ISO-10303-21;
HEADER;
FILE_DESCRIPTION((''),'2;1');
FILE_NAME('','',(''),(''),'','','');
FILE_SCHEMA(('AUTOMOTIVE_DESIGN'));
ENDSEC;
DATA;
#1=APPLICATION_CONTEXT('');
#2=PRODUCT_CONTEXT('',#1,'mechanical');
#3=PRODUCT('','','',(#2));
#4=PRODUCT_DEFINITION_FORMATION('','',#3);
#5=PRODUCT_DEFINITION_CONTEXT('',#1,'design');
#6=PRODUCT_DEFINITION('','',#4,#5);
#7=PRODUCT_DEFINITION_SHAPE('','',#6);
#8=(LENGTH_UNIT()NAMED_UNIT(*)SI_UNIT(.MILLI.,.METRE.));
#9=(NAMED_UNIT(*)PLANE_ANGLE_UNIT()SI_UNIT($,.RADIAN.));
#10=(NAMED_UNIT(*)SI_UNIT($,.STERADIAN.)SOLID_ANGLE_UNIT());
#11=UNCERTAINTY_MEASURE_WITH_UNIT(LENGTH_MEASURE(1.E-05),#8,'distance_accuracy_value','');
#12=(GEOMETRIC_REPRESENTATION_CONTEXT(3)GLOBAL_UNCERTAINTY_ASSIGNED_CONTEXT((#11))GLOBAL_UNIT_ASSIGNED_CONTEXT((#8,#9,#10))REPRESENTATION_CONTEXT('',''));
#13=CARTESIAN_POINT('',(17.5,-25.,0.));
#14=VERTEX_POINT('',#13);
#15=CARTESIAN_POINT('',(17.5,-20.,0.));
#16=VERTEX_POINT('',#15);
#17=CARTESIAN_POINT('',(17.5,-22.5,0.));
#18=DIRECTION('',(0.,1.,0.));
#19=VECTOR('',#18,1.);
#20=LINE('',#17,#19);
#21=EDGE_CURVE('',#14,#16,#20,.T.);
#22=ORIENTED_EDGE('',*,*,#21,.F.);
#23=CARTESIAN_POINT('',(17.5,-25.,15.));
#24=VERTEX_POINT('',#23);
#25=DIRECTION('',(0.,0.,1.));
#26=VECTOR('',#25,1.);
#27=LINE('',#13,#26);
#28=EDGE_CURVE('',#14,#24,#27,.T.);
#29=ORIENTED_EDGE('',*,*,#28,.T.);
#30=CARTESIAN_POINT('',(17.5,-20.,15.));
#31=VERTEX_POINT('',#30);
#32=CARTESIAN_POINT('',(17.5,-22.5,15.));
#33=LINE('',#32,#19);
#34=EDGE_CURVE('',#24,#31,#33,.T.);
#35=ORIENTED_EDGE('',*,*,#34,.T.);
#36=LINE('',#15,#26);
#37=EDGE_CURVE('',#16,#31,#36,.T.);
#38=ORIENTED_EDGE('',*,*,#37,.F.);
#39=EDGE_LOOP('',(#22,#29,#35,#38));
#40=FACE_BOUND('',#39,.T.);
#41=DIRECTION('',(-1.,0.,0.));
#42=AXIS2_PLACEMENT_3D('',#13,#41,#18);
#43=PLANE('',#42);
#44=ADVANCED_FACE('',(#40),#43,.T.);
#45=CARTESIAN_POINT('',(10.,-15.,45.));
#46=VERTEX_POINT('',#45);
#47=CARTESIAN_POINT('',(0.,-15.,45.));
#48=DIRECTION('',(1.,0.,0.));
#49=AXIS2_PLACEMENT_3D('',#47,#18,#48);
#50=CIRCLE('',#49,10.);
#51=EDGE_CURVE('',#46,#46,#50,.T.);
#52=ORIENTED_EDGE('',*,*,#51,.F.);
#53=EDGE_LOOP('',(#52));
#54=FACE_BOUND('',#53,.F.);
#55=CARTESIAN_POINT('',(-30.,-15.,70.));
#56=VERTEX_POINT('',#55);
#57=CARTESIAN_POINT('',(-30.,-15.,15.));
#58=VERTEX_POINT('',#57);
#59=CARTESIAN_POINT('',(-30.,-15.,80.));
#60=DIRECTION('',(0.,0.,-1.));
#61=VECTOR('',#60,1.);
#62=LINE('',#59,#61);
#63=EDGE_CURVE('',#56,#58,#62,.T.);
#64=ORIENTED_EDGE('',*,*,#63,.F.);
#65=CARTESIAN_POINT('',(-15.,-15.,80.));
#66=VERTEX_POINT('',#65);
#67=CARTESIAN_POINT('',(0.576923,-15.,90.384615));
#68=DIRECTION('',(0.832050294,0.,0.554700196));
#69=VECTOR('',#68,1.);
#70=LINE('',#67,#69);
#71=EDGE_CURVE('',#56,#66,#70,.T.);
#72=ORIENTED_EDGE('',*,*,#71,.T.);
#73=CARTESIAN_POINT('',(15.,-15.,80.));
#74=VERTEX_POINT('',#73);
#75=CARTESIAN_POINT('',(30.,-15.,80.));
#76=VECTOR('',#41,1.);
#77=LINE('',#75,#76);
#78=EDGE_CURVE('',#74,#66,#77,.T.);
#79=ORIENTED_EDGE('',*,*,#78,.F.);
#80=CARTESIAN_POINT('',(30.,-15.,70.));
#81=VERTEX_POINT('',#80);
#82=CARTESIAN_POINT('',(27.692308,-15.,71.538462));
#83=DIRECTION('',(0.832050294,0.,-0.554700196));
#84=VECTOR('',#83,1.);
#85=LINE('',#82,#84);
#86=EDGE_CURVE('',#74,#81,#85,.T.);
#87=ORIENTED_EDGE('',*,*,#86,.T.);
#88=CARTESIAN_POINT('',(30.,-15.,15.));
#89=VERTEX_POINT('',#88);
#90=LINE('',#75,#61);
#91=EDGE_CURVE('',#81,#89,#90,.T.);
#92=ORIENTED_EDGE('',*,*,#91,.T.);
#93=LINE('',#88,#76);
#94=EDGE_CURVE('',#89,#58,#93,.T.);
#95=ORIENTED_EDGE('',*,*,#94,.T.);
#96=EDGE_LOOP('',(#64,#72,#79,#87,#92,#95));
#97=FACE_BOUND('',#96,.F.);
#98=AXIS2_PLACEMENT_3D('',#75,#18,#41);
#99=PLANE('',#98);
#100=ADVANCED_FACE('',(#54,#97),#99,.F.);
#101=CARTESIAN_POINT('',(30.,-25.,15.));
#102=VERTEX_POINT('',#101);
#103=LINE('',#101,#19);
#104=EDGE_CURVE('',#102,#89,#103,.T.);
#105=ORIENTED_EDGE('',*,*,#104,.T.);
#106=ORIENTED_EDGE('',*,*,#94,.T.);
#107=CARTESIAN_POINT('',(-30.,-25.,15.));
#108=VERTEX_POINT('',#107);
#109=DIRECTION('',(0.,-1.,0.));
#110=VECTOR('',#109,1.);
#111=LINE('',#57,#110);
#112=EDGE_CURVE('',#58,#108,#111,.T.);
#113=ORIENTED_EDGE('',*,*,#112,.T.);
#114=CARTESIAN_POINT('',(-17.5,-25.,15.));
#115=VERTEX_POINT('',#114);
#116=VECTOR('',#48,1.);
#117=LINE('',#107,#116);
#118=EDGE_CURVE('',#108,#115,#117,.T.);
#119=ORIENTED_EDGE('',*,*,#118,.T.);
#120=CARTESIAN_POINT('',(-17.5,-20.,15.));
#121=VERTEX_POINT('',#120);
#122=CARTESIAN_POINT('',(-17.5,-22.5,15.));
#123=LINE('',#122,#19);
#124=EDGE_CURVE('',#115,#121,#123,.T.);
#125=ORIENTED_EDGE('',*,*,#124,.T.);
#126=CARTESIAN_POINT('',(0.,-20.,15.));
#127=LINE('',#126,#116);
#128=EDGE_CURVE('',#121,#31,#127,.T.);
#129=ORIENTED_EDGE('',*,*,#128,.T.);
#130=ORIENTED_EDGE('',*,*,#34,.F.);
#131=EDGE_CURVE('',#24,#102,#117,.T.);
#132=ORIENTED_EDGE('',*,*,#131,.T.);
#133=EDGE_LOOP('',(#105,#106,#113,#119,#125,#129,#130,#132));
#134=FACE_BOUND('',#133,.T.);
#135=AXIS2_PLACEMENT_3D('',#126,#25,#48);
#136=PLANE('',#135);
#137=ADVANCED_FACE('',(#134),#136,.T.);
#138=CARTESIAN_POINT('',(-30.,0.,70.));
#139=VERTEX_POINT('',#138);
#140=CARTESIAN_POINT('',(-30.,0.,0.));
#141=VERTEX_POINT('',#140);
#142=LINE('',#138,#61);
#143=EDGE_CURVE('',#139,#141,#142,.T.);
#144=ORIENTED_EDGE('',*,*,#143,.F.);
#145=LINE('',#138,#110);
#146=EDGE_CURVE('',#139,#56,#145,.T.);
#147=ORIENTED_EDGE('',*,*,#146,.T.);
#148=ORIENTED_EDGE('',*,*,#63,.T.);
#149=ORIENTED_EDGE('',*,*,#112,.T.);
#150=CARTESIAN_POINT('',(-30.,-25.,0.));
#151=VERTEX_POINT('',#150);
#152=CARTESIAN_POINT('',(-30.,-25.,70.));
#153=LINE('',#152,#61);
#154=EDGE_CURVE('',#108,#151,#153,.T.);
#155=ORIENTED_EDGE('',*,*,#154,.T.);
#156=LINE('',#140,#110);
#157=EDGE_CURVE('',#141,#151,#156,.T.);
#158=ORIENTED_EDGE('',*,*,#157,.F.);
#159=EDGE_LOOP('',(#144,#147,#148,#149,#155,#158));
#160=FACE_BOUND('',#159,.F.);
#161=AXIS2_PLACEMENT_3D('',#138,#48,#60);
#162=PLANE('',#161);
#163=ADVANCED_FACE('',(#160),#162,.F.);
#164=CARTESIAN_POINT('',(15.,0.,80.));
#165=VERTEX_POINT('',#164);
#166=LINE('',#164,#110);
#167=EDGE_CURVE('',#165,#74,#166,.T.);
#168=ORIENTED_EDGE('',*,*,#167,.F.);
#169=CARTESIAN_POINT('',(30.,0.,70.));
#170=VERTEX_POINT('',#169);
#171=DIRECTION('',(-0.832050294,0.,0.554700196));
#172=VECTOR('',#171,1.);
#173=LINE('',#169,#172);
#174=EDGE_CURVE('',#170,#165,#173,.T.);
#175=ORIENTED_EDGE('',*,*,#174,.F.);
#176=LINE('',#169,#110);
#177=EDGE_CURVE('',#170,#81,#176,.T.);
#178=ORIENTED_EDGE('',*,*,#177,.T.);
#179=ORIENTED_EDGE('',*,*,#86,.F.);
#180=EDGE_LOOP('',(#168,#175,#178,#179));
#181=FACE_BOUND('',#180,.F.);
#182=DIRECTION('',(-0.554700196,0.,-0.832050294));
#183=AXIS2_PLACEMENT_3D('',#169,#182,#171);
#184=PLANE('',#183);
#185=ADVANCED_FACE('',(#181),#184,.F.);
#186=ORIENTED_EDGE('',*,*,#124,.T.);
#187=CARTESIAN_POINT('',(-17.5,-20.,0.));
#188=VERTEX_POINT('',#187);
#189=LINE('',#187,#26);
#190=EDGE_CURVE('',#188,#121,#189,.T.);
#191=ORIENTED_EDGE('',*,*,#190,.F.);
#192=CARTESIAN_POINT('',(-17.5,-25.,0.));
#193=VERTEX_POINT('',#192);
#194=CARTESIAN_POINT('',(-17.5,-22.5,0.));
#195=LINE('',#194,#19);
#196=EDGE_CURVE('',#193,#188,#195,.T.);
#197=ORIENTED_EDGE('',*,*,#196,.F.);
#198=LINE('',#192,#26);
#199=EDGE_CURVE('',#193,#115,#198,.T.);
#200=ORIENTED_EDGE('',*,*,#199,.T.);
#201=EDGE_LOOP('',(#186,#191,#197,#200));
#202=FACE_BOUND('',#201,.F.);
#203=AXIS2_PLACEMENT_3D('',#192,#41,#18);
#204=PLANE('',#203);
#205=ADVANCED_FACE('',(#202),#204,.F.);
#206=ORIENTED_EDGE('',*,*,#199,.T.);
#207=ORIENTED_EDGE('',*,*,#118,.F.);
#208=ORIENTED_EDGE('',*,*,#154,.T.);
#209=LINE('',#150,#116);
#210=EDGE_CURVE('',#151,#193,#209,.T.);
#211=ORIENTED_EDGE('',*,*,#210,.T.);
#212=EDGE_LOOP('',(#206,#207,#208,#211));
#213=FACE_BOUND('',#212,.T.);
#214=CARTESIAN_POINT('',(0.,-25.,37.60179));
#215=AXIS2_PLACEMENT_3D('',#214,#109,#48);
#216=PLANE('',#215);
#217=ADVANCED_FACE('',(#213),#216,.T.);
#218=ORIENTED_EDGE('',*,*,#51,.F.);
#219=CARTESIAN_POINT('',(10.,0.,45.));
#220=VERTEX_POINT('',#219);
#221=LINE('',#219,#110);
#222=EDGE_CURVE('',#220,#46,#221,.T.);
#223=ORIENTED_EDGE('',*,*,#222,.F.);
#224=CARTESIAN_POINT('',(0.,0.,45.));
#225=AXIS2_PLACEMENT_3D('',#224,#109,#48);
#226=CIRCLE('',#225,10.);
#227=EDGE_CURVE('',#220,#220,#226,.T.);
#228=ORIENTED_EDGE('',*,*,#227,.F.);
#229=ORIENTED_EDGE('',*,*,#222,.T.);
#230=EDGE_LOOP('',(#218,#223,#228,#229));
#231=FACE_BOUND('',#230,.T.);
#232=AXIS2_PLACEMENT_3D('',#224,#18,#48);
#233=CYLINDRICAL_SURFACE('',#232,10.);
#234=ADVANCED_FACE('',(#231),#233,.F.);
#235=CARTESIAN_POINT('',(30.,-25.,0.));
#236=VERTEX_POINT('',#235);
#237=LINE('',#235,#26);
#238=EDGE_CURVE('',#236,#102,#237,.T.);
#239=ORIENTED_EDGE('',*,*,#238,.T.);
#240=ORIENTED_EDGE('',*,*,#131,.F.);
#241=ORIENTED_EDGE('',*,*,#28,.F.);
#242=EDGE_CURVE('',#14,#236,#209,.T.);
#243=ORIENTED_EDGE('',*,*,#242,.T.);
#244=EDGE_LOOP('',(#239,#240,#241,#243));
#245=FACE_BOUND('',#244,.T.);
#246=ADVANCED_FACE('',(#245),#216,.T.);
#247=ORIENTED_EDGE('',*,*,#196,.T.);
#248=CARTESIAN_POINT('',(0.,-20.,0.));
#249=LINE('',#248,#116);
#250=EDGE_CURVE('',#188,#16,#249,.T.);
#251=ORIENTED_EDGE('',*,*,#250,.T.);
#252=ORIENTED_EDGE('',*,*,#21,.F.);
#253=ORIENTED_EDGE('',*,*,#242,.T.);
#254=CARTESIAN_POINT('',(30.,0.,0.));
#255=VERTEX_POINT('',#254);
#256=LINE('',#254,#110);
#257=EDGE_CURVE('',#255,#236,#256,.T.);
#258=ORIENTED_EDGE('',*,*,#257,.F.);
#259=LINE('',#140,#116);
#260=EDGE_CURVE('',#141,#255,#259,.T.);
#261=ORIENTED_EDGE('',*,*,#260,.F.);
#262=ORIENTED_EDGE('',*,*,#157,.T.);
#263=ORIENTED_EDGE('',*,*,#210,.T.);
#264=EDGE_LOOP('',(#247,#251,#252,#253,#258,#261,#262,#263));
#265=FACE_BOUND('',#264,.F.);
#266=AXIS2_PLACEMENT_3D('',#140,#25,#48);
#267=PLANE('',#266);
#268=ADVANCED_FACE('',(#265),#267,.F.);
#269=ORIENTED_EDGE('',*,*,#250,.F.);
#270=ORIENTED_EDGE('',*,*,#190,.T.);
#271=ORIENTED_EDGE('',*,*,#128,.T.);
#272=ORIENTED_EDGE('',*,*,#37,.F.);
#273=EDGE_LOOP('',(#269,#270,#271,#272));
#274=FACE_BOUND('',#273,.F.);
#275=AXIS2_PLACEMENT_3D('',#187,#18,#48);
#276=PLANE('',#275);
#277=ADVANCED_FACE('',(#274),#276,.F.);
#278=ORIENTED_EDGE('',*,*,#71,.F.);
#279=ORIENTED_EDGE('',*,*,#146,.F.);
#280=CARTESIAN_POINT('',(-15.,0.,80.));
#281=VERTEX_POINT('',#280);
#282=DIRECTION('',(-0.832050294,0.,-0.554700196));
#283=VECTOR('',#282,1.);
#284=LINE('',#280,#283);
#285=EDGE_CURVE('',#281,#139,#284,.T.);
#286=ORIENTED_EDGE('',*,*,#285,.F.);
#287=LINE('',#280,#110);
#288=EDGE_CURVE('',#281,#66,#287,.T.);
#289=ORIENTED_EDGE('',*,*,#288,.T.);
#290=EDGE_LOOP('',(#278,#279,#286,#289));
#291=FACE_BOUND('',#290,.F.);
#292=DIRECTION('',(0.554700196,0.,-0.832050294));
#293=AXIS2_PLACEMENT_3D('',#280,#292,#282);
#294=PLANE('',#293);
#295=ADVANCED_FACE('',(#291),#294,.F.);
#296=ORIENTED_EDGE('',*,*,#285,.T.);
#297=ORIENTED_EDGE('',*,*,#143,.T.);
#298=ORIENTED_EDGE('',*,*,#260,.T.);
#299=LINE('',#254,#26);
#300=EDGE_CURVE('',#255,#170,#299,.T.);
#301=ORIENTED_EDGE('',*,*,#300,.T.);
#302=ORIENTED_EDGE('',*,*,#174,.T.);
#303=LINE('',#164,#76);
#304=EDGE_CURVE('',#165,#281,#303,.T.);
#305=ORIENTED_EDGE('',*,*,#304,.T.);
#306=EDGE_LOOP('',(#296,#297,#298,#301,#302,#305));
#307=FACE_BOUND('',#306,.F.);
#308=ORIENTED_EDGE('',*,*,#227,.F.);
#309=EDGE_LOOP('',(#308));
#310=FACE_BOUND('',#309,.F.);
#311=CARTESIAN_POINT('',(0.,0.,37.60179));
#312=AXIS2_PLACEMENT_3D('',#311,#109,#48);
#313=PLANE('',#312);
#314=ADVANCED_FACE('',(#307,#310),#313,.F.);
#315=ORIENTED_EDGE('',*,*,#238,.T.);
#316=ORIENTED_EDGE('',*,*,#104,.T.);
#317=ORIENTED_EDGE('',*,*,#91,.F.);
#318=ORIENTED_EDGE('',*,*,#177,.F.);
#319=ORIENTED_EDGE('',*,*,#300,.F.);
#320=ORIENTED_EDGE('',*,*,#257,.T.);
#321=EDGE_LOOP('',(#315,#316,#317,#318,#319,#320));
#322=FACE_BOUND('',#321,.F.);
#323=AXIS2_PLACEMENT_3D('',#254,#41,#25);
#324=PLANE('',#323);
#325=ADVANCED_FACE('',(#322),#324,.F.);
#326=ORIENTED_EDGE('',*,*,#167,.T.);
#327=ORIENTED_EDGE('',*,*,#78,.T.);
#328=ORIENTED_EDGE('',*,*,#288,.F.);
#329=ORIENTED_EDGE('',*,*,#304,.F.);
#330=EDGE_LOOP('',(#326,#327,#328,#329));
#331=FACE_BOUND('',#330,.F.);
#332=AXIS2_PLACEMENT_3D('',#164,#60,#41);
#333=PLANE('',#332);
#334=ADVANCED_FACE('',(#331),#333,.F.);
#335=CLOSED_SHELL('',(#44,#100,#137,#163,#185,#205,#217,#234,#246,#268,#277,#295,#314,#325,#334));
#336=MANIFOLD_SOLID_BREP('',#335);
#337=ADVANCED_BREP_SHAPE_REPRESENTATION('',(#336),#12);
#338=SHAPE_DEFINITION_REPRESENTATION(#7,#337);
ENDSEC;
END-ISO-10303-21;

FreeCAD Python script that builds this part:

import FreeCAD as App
import Part
import Sketcher
Q = App.Units.Quantity


def add_polygon(sketch, points):
    """Adds a closed chain of lines whose ends are joined by coincident constraints."""
    first, n = sketch.GeometryCount, len(points)
    for a, b in zip(points, points[1:] + points[:1]):
        sketch.addGeometry(Part.LineSegment(App.Vector(*a, 0), App.Vector(*b, 0)), False)
    for i in range(n):
        sketch.addConstraint(Sketcher.Constraint("Coincident", first + i, 2, first + (i + 1) % n, 1))

doc = App.newDocument("Part")
params = doc.addObject("Spreadsheet::Sheet", "Params")
for row, (alias, value) in enumerate([
    ("sketch1_diameter", "20 mm"),
    ("sketch1_width", "60 mm"),
    ("sketch1_width2", "30 mm"),
    ("sketch1_height", "70 mm"),
    ("pad1_length", "25 mm"),
    ("sketch2_width", "60 mm"),
    ("sketch2_height", "10 mm"),
    ("pocket1_length", "65 mm"),
    ("sketch3_width", "35 mm"),
    ("sketch3_height", "5 mm"),
    ("pocket2_length", "15 mm"),
], start=1):
    params.set(f"A{row}", alias)
    params.set(f"B{row}", "=" + value)
    params.setAlias(f"B{row}", alias)

body = doc.addObject("PartDesign::Body", "Body")

# Sketch on XZ plane
sketch1 = body.newObject("Sketcher::SketchObject", "Sketch")
sketch1.AttachmentSupport = (doc.getObject("XZ_Plane"), [""])
sketch1.MapMode = "FlatFace"
add_polygon(sketch1, [(-30, 0), (30, 0), (30, 70), (15, 80), (-15, 80), (-30, 70)])  # lines 0-5
sketch1.addGeometry(Part.Circle(App.Vector(0, 45, 0), App.Vector(0, 0, 1), 10), False)  # 6
sketch1.addConstraint(Sketcher.Constraint("Horizontal", 0))
sketch1.addConstraint(Sketcher.Constraint("Vertical", 1))
sketch1.addConstraint(Sketcher.Constraint("Horizontal", 3))
sketch1.addConstraint(Sketcher.Constraint("Vertical", 5))
sketch1.addConstraint(Sketcher.Constraint("Symmetric", 0, 2, 5, 2, -1, 1))
sketch1.addConstraint(Sketcher.Constraint("PointOnObject", 6, 3, -2))
sketch1.addConstraint(Sketcher.Constraint("Horizontal", 1, 2, 4, 2))
sketch1.addConstraint(Sketcher.Constraint("Equal", 2, 4))
sketch1.addConstraint(Sketcher.Constraint("Diameter", 6, Q("20 mm")))
sketch1.addConstraint(Sketcher.Constraint("DistanceX", 0, 1, 0, 2, Q("60 mm")))
sketch1.addConstraint(Sketcher.Constraint("DistanceX", 3, 2, 3, 1, Q("30 mm")))
sketch1.addConstraint(Sketcher.Constraint("DistanceY", 1, 1, 1, 2, Q("70 mm")))
sketch1.addConstraint(Sketcher.Constraint("DistanceY", -1, 1, 6, 3, Q("45 mm")))
sketch1.addConstraint(Sketcher.Constraint("DistanceY", -1, 1, 2, 2, Q("80 mm")))
sketch1.setExpression("Constraints[14]", "Params.sketch1_diameter")
sketch1.setExpression("Constraints[15]", "Params.sketch1_width")
sketch1.setExpression("Constraints[16]", "Params.sketch1_width2")
sketch1.setExpression("Constraints[17]", "Params.sketch1_height")
pad1 = body.newObject("PartDesign::Pad", "Pad")
pad1.Profile = sketch1
pad1.setExpression("Length", "Params.pad1_length")

# Sketch on XY plane
sketch2 = body.newObject("Sketcher::SketchObject", "Sketch001")
sketch2.AttachmentSupport = (doc.getObject("XY_Plane"), [""])
sketch2.MapMode = "FlatFace"
sketch2.AttachmentOffset = App.Placement(App.Vector(0, 0, 80), App.Rotation())
add_polygon(sketch2, [(-30, -25), (30, -25), (30, -15), (-30, -15)])  # lines 0-3
sketch2.addConstraint(Sketcher.Constraint("Horizontal", 0))
sketch2.addConstraint(Sketcher.Constraint("Vertical", 1))
sketch2.addConstraint(Sketcher.Constraint("Horizontal", 2))
sketch2.addConstraint(Sketcher.Constraint("Vertical", 3))
sketch2.addConstraint(Sketcher.Constraint("DistanceX", 0, 1, 0, 2, Q("60 mm")))
sketch2.addConstraint(Sketcher.Constraint("DistanceY", 1, 1, 1, 2, Q("10 mm")))
sketch2.addConstraint(Sketcher.Constraint("DistanceX", -1, 1, 0, 2, Q("30 mm")))
sketch2.addConstraint(Sketcher.Constraint("DistanceY", 0, 2, -1, 1, Q("25 mm")))
sketch2.setExpression("Constraints[8]", "Params.sketch2_width")
sketch2.setExpression("Constraints[9]", "Params.sketch2_height")
pocket1 = body.newObject("PartDesign::Pocket", "Pocket")
pocket1.Profile = sketch2
pocket1.setExpression("Length", "Params.pocket1_length")

# Sketch on XY plane
sketch3 = body.newObject("Sketcher::SketchObject", "Sketch002")
sketch3.AttachmentSupport = (doc.getObject("XY_Plane"), [""])
sketch3.MapMode = "FlatFace"
add_polygon(sketch3, [(-18, -20), (-18, -25), (18, -25), (18, -20)])  # lines 0-3
sketch3.addConstraint(Sketcher.Constraint("Vertical", 0))
sketch3.addConstraint(Sketcher.Constraint("Horizontal", 1))
sketch3.addConstraint(Sketcher.Constraint("Vertical", 2))
sketch3.addConstraint(Sketcher.Constraint("Horizontal", 3))
sketch3.addConstraint(Sketcher.Constraint("DistanceX", 1, 1, 1, 2, Q("35 mm")))
sketch3.addConstraint(Sketcher.Constraint("DistanceY", 0, 2, 0, 1, Q("5 mm")))
sketch3.addConstraint(Sketcher.Constraint("DistanceY", 0, 2, -1, 1, Q("25 mm")))
sketch3.addConstraint(Sketcher.Constraint("DistanceX", 0, 2, -1, 1, Q("17.5 mm")))
sketch3.setExpression("Constraints[8]", "Params.sketch3_width")
sketch3.setExpression("Constraints[9]", "Params.sketch3_height")
pocket2 = body.newObject("PartDesign::Pocket", "Pocket001")
pocket2.Profile = sketch3
pocket2.setExpression("Length", "Params.pocket2_length")
pocket2.Reversed = True

doc.recompute()
